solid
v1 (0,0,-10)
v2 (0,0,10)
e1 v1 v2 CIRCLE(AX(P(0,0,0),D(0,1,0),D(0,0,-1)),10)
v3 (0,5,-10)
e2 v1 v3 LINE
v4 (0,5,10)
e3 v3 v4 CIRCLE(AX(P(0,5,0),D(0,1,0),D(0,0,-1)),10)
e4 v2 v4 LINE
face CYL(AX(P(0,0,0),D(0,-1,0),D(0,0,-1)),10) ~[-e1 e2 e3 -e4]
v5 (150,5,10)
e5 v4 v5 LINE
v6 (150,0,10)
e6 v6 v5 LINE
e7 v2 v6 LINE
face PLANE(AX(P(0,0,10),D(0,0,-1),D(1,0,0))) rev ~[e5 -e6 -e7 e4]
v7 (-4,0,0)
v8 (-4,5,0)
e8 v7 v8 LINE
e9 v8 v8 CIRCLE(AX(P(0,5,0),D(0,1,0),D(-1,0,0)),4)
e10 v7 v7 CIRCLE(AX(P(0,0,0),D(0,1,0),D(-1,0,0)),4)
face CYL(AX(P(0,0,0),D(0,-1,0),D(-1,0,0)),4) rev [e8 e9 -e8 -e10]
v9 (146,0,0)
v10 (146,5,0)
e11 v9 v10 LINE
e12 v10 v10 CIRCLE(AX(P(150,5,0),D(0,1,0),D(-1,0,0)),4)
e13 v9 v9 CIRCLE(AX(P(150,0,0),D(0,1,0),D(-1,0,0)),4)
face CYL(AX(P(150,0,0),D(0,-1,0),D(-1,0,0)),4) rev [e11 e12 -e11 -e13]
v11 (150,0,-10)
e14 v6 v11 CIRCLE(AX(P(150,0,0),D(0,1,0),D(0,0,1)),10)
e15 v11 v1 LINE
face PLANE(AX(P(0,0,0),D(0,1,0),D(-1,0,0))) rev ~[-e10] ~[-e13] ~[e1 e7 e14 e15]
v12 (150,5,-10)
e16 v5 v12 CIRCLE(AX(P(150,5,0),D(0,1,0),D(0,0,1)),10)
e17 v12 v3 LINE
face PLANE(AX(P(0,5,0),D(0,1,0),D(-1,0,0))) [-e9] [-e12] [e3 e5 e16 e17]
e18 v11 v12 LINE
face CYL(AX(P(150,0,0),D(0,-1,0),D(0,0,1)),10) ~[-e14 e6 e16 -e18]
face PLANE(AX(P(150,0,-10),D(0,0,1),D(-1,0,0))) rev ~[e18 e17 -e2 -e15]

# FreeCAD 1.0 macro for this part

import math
import FreeCAD as App
import Part
import Sketcher
from FreeCAD import Vector

doc = App.newDocument("Part")
body = doc.addObject("PartDesign::Body", "Body")

sketch1 = doc.addObject("Sketcher::SketchObject", "Sketch")
body.addObject(sketch1)
sketch1.AttachmentSupport = (doc.XZ_Plane, [""])
sketch1.MapMode = "FlatFace"
sketch1.addGeometry([
    Part.ArcOfCircle(Part.Circle(Vector(0, 0, 0), Vector(0, 0, 1), 10), math.radians(90), math.radians(270)),
    Part.LineSegment(Vector(0, 10, 0), Vector(150, 10, 0)),
    Part.ArcOfCircle(Part.Circle(Vector(150, 0, 0), Vector(0, 0, 1), 10), math.radians(-90), math.radians(90)),
    Part.LineSegment(Vector(150, -10, 0), Vector(0, -10, 0)),
    Part.Circle(Vector(150, 0, 0), Vector(0, 0, 1), 4),
    Part.Circle(Vector(0, 0, 0), Vector(0, 0, 1), 4),
], False)
sketch1.addConstraint([
    Sketcher.Constraint("Tangent", 0, 1, 1, 1),
    Sketcher.Constraint("Tangent", 1, 2, 2, 2),
    Sketcher.Constraint("Tangent", 2, 1, 3, 1),
    Sketcher.Constraint("Tangent", 3, 2, 0, 2),
    Sketcher.Constraint("Horizontal", 1),
    Sketcher.Constraint("Horizontal", 3),
    Sketcher.Constraint("Coincident", 0, 3, -1, 1),
    Sketcher.Constraint("Coincident", 5, 3, -1, 1),
    Sketcher.Constraint("Coincident", 4, 3, 2, 3),
    Sketcher.Constraint("Equal", 4, 5),
    Sketcher.Constraint("Diameter", 4, 8.0),
    Sketcher.Constraint("Radius", 0, 10.0),
    Sketcher.Constraint("DistanceX", 1, 1, 1, 2, 150.0),
])
pad1 = doc.addObject("PartDesign::Pad", "Pad")
body.addObject(pad1)
pad1.Profile = sketch1
pad1.Length = 5
pad1.Reversed = True

doc.recompute()
